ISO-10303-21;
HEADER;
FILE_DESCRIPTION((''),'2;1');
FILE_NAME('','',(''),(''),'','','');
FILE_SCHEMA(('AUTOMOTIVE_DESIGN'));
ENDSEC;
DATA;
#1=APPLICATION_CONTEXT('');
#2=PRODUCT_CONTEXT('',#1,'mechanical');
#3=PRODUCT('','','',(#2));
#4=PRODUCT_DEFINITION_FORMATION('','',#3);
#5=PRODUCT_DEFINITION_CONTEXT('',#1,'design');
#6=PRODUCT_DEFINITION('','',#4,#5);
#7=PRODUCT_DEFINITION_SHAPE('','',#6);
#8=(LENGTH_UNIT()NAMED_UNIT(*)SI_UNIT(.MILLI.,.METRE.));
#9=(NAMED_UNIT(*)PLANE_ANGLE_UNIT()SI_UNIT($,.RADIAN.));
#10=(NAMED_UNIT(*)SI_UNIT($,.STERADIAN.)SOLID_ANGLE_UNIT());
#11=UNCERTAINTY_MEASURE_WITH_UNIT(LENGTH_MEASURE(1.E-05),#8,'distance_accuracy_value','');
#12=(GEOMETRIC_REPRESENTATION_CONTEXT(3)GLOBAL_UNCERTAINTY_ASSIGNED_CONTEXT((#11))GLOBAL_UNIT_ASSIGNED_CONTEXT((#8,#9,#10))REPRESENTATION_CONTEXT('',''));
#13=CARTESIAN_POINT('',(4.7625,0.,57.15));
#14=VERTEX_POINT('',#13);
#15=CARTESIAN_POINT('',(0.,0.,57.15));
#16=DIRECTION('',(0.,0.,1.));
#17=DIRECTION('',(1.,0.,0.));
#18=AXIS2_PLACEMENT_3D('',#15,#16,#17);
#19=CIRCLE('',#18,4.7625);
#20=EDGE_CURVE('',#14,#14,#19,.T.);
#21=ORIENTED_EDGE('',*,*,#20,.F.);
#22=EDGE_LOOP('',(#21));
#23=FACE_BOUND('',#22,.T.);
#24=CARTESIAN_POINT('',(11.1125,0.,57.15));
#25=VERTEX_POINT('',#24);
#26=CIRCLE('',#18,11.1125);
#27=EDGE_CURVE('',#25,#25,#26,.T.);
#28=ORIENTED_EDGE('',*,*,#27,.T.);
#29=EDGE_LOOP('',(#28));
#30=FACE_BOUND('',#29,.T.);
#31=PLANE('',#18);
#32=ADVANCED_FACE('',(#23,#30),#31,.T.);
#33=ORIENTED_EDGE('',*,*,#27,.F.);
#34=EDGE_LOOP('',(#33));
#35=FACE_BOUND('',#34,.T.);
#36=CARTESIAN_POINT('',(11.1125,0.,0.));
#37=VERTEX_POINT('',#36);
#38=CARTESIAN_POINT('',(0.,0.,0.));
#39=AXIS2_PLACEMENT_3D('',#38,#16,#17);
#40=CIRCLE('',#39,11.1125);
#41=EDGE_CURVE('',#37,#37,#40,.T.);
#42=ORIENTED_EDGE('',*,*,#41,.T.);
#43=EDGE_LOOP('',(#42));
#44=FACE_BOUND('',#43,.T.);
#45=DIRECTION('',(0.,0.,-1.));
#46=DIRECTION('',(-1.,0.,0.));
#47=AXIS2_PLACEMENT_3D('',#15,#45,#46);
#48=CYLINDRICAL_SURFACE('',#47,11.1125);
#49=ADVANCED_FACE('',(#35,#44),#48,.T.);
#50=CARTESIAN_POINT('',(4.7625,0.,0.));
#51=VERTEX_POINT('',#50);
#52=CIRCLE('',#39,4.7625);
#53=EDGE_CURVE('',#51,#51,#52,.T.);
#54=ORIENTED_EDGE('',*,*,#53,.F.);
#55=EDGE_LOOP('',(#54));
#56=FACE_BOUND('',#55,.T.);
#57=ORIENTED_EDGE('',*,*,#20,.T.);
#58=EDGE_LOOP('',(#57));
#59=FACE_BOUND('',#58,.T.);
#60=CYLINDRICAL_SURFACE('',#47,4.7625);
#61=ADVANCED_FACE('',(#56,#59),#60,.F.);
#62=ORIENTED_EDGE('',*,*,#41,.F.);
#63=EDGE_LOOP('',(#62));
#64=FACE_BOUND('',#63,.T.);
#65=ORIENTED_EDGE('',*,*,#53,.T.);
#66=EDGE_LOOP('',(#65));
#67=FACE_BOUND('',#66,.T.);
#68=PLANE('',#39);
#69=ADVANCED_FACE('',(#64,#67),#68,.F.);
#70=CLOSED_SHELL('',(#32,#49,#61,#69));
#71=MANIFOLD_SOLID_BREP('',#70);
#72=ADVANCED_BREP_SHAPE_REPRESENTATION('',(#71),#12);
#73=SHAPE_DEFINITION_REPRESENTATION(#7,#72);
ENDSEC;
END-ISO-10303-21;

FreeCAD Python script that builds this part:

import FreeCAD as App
import Part
import Sketcher

V = App.Vector
Q = App.Units.Quantity

doc = App.newDocument("Part")
params = doc.addObject("Spreadsheet::Sheet", "Params")
for row, (alias, value) in enumerate([
    ("sketch1_diameter", "0.875 in"),
    ("sketch1_diameter2", "0.375 in"),
    ("pad1_length", "2.25 in"),
], start=1):
    params.set(f"A{row}", alias)
    params.set(f"B{row}", "=" + value)
    params.setAlias(f"B{row}", alias)

body = doc.addObject("PartDesign::Body", "Body")

sketch1 = doc.addObject("Sketcher::SketchObject", "Sketch")
body.addObject(sketch1)
sketch1.AttachmentSupport = (doc.XY_Plane, [""])
sketch1.MapMode = "FlatFace"
sketch1.addGeometry(Part.Circle(V(0, 0, 0), V(0, 0, 1), 11.1), False)
sketch1.addGeometry(Part.Circle(V(0, 0, 0), V(0, 0, 1), 4.8), False)
sketch1.addConstraint(Sketcher.Constraint("Coincident", 0, 3, -1, 1))
sketch1.addConstraint(Sketcher.Constraint("Coincident", 1, 3, -1, 1))
sketch1.addConstraint(Sketcher.Constraint("Diameter", 0, Q("0.875 in")))
sketch1.addConstraint(Sketcher.Constraint("Diameter", 1, Q("0.375 in")))
sketch1.setExpression("Constraints[2]", "Params.sketch1_diameter")
sketch1.setExpression("Constraints[3]", "Params.sketch1_diameter2")
pad1 = doc.addObject("PartDesign::Pad", "Pad")
body.addObject(pad1)
pad1.Profile = sketch1
pad1.setExpression("Length", "Params.pad1_length")

doc.recompute()
